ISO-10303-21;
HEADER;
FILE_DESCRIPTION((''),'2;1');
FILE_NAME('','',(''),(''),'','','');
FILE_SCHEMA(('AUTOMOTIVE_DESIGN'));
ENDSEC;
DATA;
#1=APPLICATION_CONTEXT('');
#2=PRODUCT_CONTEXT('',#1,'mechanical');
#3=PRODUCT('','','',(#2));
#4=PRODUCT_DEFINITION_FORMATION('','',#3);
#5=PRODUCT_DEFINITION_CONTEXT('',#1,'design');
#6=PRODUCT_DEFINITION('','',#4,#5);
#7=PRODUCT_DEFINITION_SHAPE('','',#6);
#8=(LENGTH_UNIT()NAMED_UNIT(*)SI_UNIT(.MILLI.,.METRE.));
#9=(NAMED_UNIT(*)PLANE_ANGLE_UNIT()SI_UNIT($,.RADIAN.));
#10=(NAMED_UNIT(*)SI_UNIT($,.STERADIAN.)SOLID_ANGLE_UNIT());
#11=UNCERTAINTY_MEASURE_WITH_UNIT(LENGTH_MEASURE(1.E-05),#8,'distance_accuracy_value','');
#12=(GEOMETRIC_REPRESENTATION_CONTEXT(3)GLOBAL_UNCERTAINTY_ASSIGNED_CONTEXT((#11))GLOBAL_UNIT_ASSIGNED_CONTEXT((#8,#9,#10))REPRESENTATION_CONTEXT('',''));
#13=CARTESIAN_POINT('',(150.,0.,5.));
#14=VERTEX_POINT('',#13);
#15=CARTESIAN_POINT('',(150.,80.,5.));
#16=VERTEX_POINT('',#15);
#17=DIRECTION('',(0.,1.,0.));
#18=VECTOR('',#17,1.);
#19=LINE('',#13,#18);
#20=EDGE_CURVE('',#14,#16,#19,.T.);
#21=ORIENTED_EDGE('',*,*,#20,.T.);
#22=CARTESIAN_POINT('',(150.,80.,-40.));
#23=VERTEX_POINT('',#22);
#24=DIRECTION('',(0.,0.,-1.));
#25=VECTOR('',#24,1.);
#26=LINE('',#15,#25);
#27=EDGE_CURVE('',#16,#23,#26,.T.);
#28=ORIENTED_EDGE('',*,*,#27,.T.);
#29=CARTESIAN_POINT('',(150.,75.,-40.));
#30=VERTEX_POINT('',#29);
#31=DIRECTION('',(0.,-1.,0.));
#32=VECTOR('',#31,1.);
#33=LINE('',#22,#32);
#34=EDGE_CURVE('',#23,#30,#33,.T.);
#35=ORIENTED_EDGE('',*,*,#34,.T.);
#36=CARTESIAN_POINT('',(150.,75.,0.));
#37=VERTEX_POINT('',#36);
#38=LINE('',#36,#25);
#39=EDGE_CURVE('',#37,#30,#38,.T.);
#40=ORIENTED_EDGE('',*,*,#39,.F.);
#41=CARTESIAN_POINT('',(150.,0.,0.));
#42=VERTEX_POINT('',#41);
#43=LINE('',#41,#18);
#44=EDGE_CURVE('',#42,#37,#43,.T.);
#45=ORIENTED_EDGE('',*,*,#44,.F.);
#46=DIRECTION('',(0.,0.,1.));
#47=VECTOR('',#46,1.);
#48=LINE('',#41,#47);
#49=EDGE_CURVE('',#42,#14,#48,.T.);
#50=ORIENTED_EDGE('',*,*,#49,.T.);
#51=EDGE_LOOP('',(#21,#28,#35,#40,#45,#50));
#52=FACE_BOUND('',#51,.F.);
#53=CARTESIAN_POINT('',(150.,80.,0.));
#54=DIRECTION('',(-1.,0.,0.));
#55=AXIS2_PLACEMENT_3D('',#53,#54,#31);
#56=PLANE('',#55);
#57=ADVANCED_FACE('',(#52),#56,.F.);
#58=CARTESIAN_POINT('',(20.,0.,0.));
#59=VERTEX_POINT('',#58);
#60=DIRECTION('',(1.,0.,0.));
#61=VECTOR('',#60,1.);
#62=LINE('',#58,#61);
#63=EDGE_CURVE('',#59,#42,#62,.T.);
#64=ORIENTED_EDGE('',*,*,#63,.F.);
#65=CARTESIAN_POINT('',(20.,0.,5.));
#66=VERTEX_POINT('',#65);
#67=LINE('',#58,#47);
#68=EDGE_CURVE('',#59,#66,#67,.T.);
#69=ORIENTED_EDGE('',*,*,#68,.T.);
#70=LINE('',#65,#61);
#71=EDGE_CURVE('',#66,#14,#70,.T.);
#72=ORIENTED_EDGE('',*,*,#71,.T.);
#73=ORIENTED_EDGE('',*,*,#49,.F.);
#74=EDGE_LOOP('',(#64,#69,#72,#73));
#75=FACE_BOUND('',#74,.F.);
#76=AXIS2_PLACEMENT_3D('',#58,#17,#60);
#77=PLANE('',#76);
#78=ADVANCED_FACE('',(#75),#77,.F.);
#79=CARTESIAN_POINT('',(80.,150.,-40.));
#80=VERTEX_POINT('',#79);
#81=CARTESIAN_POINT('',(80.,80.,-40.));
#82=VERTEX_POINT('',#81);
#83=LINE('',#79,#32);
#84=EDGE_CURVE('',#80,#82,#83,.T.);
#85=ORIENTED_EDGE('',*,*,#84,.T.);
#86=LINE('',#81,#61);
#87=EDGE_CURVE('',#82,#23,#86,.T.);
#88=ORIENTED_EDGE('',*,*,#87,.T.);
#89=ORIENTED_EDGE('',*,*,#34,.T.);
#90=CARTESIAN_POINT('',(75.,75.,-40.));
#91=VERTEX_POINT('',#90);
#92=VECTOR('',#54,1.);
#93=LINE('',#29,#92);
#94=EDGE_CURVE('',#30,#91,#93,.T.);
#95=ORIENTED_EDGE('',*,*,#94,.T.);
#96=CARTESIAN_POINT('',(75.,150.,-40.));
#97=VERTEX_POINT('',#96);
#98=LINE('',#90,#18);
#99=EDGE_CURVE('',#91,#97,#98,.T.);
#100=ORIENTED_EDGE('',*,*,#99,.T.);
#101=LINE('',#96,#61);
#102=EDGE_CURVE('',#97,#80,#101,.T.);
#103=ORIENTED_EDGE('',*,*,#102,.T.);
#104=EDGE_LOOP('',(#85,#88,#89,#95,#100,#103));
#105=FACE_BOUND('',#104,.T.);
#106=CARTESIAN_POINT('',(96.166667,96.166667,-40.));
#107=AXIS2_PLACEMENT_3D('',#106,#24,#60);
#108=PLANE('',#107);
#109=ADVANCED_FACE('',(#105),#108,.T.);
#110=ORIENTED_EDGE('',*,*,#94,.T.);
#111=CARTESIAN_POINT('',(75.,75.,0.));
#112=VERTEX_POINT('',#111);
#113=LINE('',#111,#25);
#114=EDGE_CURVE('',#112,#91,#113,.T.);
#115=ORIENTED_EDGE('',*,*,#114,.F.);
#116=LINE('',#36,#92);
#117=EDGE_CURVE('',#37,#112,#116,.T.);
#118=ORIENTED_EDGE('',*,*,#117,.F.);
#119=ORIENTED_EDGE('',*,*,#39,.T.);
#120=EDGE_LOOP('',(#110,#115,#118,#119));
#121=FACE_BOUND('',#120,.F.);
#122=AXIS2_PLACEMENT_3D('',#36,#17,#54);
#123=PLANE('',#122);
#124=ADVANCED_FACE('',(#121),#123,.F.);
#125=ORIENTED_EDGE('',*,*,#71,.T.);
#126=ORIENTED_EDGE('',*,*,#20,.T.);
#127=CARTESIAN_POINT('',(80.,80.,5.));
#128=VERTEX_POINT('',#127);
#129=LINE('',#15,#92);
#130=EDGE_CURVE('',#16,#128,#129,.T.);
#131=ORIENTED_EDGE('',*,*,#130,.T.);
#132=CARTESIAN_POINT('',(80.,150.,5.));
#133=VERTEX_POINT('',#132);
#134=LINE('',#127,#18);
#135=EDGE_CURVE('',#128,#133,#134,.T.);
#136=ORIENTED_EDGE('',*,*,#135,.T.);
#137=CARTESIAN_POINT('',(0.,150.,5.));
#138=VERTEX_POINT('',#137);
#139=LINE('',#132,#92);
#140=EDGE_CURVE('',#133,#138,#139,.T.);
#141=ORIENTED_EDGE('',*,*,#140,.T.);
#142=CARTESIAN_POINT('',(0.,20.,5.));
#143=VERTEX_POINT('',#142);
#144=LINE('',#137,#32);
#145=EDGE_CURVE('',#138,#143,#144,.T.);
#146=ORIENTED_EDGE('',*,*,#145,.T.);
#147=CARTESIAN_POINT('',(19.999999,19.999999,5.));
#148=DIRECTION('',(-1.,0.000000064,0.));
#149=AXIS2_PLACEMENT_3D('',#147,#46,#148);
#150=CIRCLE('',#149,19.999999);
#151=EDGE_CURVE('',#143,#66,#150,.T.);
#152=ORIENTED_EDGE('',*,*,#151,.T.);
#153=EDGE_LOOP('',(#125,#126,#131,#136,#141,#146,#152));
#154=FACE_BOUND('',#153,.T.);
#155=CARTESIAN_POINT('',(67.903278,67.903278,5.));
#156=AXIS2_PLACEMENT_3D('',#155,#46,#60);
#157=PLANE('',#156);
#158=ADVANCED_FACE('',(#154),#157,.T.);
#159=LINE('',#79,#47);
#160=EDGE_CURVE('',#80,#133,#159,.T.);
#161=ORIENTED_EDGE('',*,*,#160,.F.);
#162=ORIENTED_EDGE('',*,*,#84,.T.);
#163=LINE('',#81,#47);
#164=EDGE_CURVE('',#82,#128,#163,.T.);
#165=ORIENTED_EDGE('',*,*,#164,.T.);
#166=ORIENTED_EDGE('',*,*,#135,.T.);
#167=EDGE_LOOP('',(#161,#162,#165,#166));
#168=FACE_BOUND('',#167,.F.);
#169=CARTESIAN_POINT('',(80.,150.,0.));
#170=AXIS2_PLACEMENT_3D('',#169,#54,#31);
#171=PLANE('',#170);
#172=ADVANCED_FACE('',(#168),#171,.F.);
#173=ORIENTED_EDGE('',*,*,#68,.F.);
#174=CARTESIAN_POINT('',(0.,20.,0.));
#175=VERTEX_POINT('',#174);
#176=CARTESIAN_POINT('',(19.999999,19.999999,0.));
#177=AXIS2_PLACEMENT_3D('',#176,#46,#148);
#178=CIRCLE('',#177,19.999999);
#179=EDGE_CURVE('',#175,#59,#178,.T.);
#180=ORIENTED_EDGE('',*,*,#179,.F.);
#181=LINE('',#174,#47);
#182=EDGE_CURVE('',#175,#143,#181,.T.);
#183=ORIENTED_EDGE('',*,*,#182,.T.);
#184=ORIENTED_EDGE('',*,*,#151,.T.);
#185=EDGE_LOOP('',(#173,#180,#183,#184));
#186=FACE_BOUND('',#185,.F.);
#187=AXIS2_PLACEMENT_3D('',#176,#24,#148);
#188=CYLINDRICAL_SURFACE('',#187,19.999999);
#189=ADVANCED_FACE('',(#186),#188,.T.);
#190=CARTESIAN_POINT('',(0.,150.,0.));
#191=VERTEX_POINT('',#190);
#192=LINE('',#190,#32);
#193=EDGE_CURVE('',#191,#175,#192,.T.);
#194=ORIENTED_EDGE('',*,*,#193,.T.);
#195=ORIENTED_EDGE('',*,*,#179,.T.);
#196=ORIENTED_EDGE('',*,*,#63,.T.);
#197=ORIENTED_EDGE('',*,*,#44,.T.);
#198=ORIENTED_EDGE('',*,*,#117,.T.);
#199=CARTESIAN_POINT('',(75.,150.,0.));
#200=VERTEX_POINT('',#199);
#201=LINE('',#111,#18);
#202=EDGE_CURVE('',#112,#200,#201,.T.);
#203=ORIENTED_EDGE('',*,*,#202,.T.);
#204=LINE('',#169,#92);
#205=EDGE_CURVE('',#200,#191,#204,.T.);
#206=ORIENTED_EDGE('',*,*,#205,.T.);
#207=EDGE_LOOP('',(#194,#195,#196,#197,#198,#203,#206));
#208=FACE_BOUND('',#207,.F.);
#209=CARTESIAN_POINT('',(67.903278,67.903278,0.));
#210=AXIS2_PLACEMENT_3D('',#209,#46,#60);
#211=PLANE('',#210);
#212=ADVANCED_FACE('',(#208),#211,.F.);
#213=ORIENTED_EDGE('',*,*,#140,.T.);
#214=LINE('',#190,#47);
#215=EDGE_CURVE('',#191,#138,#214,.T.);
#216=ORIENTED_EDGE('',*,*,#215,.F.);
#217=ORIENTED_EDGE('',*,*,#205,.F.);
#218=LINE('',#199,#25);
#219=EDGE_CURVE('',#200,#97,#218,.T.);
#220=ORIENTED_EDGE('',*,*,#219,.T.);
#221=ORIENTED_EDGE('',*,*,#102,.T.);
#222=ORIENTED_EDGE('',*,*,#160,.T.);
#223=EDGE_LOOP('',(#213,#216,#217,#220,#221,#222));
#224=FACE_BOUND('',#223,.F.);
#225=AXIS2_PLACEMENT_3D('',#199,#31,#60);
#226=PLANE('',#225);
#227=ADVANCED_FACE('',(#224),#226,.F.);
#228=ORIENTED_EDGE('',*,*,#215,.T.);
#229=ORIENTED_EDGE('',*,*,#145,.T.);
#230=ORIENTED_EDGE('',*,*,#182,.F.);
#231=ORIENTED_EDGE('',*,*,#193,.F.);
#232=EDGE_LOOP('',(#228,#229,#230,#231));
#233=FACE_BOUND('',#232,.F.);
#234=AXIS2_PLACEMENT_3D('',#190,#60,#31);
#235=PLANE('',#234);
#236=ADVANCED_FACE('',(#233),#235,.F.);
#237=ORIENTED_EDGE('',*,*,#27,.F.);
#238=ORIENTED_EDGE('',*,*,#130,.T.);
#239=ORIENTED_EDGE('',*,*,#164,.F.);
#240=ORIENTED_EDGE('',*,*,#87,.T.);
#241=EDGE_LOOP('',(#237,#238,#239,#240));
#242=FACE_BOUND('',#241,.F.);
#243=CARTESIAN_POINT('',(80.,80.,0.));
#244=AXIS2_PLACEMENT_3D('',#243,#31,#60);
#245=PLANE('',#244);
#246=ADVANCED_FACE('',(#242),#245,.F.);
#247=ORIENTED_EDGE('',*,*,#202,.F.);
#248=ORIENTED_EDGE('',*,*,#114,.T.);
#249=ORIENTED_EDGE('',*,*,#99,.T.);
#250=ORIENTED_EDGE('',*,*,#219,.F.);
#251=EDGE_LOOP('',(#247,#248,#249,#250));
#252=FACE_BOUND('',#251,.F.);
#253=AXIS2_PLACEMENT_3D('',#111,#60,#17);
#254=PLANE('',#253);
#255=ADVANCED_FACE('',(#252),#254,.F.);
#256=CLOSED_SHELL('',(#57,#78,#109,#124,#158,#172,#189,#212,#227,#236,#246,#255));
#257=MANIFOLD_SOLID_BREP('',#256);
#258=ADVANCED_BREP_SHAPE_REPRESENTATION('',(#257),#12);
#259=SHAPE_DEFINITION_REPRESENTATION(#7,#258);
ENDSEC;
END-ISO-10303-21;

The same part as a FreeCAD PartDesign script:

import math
import FreeCAD as App
import Part
import Sketcher
Q = App.Units.Quantity


def add_polygon(sketch, points):
    """Adds a closed chain of lines whose ends are joined by coincident constraints."""
    first, n = sketch.GeometryCount, len(points)
    for a, b in zip(points, points[1:] + points[:1]):
        sketch.addGeometry(Part.LineSegment(App.Vector(*a, 0), App.Vector(*b, 0)), False)
    for i in range(n):
        sketch.addConstraint(Sketcher.Constraint("Coincident", first + i, 2, first + (i + 1) % n, 1))

doc = App.newDocument("Part")
body = doc.addObject("PartDesign::Body", "Body")

sketch1 = body.newObject("Sketcher::SketchObject", "Sketch")
sketch1.AttachmentSupport = (doc.getObject("XY_Plane"), [""])
sketch1.MapMode = "FlatFace"
sketch1.addGeometry(Part.ArcOfCircle(Part.Circle(App.Vector(20, 20, 0), App.Vector(0, 0, 1), 20), math.radians(180), math.radians(270)), False)
sketch1.addGeometry(Part.LineSegment(App.Vector(20, 0, 0), App.Vector(150, 0, 0)), False)
sketch1.addGeometry(Part.LineSegment(App.Vector(150, 0, 0), App.Vector(150, 80, 0)), False)
sketch1.addGeometry(Part.LineSegment(App.Vector(150, 80, 0), App.Vector(80, 80, 0)), False)
sketch1.addGeometry(Part.LineSegment(App.Vector(80, 80, 0), App.Vector(80, 150, 0)), False)
sketch1.addGeometry(Part.LineSegment(App.Vector(80, 150, 0), App.Vector(0, 150, 0)), False)
sketch1.addGeometry(Part.LineSegment(App.Vector(0, 150, 0), App.Vector(0, 20, 0)), False)
sketch1.addConstraint(Sketcher.Constraint("Tangent", 0, 2, 1, 1))
sketch1.addConstraint(Sketcher.Constraint("Coincident", 1, 2, 2, 1))
sketch1.addConstraint(Sketcher.Constraint("Coincident", 2, 2, 3, 1))
sketch1.addConstraint(Sketcher.Constraint("Coincident", 3, 2, 4, 1))
sketch1.addConstraint(Sketcher.Constraint("Coincident", 4, 2, 5, 1))
sketch1.addConstraint(Sketcher.Constraint("Coincident", 5, 2, 6, 1))
sketch1.addConstraint(Sketcher.Constraint("Tangent", 6, 2, 0, 1))
sketch1.addConstraint(Sketcher.Constraint("Horizontal", 1))
sketch1.addConstraint(Sketcher.Constraint("Vertical", 2))
sketch1.addConstraint(Sketcher.Constraint("Horizontal", 3))
sketch1.addConstraint(Sketcher.Constraint("Vertical", 4))
sketch1.addConstraint(Sketcher.Constraint("Horizontal", 5))
sketch1.addConstraint(Sketcher.Constraint("Vertical", 6))
sketch1.addConstraint(Sketcher.Constraint("PointOnObject", 0, 2, -1))
sketch1.addConstraint(Sketcher.Constraint("PointOnObject", 5, 2, -2))
sketch1.addConstraint(Sketcher.Constraint("Equal", 5, 2))
sketch1.addConstraint(Sketcher.Constraint("Equal", 3, 4))
sketch1.addConstraint(Sketcher.Constraint("Radius", 0, Q("19.999999 mm")))
sketch1.addConstraint(Sketcher.Constraint("DistanceX", 1, 1, 1, 2, Q("130 mm")))
sketch1.addConstraint(Sketcher.Constraint("DistanceX", 3, 2, 3, 1, Q("70 mm")))
pad1 = body.newObject("PartDesign::Pad", "Pad")
pad1.Profile = sketch1
pad1.Length = 5

sketch2 = body.newObject("Sketcher::SketchObject", "Sketch001")
sketch2.AttachmentSupport = (doc.getObject("XY_Plane"), [""])
sketch2.MapMode = "FlatFace"
add_polygon(sketch2, [(80, 80), (150, 80), (150, 75), (75, 75), (75, 150), (80, 150)])
sketch2.addConstraint(Sketcher.Constraint("Horizontal", 0))
sketch2.addConstraint(Sketcher.Constraint("Vertical", 1))
sketch2.addConstraint(Sketcher.Constraint("Horizontal", 2))
sketch2.addConstraint(Sketcher.Constraint("Vertical", 3))
sketch2.addConstraint(Sketcher.Constraint("Horizontal", 4))
sketch2.addConstraint(Sketcher.Constraint("Vertical", 5))
sketch2.addConstraint(Sketcher.Constraint("Equal", 4, 1))
sketch2.addConstraint(Sketcher.Constraint("Equal", 2, 3))
sketch2.addConstraint(Sketcher.Constraint("DistanceX", 0, 1, 0, 2, Q("70 mm")))
sketch2.addConstraint(Sketcher.Constraint("DistanceX", 2, 2, 2, 1, Q("75 mm")))
sketch2.addConstraint(Sketcher.Constraint("DistanceX", -1, 1, 0, 2, Q("150 mm")))
sketch2.addConstraint(Sketcher.Constraint("DistanceY", -1, 1, 0, 2, Q("80 mm")))
pad2 = body.newObject("PartDesign::Pad", "Pad001")
pad2.Profile = sketch2
pad2.Length = 40
pad2.Reversed = True

doc.recompute()
